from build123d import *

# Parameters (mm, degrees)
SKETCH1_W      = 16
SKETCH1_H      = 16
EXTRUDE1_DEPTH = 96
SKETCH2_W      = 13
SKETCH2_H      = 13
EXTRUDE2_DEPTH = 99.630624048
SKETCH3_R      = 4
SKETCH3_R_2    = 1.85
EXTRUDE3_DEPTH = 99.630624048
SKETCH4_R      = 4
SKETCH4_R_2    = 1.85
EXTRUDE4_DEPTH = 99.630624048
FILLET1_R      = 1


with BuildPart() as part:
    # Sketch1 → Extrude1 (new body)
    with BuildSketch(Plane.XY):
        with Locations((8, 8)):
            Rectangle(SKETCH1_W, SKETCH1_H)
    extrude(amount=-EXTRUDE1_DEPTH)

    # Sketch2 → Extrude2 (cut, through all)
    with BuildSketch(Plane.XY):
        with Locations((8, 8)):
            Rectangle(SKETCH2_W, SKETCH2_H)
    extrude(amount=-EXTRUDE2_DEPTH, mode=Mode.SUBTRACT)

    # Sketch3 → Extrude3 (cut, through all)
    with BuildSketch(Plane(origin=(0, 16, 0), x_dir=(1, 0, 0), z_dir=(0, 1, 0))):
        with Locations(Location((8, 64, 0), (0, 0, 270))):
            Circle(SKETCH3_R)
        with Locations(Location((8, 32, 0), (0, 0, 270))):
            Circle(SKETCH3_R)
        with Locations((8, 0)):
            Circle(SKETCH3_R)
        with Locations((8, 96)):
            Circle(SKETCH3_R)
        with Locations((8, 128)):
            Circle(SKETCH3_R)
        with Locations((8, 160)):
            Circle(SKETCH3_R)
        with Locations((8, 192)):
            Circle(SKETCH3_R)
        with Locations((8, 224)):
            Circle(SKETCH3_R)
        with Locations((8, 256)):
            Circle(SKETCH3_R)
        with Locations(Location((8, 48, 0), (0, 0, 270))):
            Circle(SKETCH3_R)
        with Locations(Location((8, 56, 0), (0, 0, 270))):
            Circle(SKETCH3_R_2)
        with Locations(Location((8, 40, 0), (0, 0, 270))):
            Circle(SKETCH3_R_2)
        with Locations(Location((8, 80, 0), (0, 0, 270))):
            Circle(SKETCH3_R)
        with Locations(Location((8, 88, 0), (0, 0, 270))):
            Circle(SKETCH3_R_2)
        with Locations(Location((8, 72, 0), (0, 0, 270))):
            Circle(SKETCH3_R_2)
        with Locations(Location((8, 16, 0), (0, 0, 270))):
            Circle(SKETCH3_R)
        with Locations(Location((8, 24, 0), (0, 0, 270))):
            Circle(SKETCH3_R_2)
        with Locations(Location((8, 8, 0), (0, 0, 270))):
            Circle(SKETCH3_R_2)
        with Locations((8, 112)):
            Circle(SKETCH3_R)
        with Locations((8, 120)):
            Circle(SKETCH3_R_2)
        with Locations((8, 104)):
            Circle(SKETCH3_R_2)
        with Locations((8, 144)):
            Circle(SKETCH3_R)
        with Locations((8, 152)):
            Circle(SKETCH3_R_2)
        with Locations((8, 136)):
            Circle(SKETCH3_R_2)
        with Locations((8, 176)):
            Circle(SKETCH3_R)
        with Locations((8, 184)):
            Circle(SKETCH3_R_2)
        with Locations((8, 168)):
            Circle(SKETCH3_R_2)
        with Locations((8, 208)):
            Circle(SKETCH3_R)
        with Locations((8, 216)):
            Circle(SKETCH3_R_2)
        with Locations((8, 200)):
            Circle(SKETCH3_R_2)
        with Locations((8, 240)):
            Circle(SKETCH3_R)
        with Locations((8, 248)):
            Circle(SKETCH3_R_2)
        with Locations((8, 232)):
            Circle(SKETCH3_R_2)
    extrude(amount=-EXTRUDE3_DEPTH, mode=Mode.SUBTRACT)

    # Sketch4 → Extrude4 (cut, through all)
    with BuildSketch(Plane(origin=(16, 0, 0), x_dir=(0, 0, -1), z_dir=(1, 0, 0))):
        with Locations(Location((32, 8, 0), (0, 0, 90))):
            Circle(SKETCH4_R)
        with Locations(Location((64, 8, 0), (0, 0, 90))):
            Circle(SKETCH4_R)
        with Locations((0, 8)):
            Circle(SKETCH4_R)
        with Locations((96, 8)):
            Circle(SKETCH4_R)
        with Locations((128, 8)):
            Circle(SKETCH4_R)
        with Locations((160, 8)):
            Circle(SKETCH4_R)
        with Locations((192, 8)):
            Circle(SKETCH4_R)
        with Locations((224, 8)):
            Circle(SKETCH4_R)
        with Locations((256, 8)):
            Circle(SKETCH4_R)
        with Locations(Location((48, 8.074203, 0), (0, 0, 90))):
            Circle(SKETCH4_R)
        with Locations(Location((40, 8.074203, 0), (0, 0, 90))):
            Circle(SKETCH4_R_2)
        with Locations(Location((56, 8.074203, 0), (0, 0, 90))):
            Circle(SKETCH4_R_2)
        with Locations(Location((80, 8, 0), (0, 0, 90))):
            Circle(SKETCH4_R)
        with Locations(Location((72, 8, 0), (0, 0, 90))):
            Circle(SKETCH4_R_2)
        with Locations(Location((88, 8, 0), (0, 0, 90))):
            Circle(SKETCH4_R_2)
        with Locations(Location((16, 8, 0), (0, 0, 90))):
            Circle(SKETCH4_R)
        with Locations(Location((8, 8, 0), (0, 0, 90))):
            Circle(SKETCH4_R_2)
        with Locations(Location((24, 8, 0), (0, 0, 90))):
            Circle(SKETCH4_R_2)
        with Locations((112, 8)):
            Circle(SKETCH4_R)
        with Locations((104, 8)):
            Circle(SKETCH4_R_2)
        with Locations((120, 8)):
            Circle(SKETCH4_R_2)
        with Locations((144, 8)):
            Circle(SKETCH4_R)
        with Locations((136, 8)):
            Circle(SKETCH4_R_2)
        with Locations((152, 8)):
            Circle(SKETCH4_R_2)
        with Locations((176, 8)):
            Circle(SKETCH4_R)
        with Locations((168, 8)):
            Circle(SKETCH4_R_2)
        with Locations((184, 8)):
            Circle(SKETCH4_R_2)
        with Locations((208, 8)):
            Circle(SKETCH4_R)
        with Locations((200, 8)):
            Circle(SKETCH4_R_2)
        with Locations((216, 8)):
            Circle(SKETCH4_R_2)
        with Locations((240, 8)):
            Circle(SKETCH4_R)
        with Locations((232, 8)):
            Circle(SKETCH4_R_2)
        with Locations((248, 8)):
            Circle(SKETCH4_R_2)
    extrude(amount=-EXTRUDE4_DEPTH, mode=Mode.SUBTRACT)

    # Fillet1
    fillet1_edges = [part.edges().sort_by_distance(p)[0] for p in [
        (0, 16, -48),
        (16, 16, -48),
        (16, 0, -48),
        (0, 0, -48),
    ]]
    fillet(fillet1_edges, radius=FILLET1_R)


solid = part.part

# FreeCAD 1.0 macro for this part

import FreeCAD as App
import Part
import Sketcher
from FreeCAD import Vector


def edges_at(feature, points):
    """Names of the edges that pass closest to the given points."""
    edges = feature.Shape.Edges
    near = lambda p: min(range(len(edges)), key=lambda i: edges[i].distToShape(Part.Vertex(*p))[0])
    return sorted({f"Edge{near(p) + 1}" for p in points})

doc = App.newDocument("Part")
params = doc.addObject("Spreadsheet::Sheet", "Params")
for row, (alias, value) in enumerate([
    ("sketch1_width", "16 mm"),
    ("pad1_length", "96 mm"),
    ("sketch2_width", "13 mm"),
    ("sketch3_diameter", "8 mm"),
    ("sketch3_diameter2", "3.7 mm"),
    ("sketch4_diameter", "8 mm"),
    ("sketch4_diameter2", "3.7 mm"),
    ("fillet_radius", "1 mm"),
], start=1):
    params.set(f"A{row}", alias)
    params.set(f"B{row}", "=" + value)
    params.setAlias(f"B{row}", alias)

body = doc.addObject("PartDesign::Body", "Body")

# Sketch on XY plane
sketch1 = doc.addObject("Sketcher::SketchObject", "Sketch")
body.addObject(sketch1)
sketch1.AttachmentSupport = (doc.XY_Plane, [""])
sketch1.MapMode = "FlatFace"
sketch1.addGeometry([
    Part.LineSegment(Vector(0, 16, 0), Vector(0, 0, 0)),
    Part.LineSegment(Vector(0, 0, 0), Vector(16, 0, 0)),
    Part.LineSegment(Vector(16, 0, 0), Vector(16, 16, 0)),
    Part.LineSegment(Vector(16, 16, 0), Vector(0, 16, 0)),
], False)
sketch1.addConstraint([
    Sketcher.Constraint("Coincident", 0, 2, 1, 1),
    Sketcher.Constraint("Coincident", 1, 2, 2, 1),
    Sketcher.Constraint("Coincident", 2, 2, 3, 1),
    Sketcher.Constraint("Coincident", 3, 2, 0, 1),
    Sketcher.Constraint("Vertical", 0),
    Sketcher.Constraint("Horizontal", 1),
    Sketcher.Constraint("Vertical", 2),
    Sketcher.Constraint("Horizontal", 3),
    Sketcher.Constraint("Coincident", 0, 2, -1, 1),
    Sketcher.Constraint("Equal", 3, 0),
    Sketcher.Constraint("DistanceX", 1, 1, 1, 2, 16.0),
])
sketch1.setExpression("Constraints[10]", "Params.sketch1_width")
pad1 = doc.addObject("PartDesign::Pad", "Pad")
body.addObject(pad1)
pad1.Profile = sketch1
pad1.setExpression("Length", "Params.pad1_length")
pad1.Reversed = True

# Sketch on XY plane
sketch2 = doc.addObject("Sketcher::SketchObject", "Sketch001")
body.addObject(sketch2)
sketch2.AttachmentSupport = (doc.XY_Plane, [""])
sketch2.MapMode = "FlatFace"
sketch2.addGeometry([
    Part.LineSegment(Vector(2, 14, 0), Vector(2, 2, 0)),
    Part.LineSegment(Vector(2, 2, 0), Vector(14, 2, 0)),
    Part.LineSegment(Vector(14, 2, 0), Vector(14, 14, 0)),
    Part.LineSegment(Vector(14, 14, 0), Vector(2, 14, 0)),
], False)
sketch2.addConstraint([
    Sketcher.Constraint("Coincident", 0, 2, 1, 1),
    Sketcher.Constraint("Coincident", 1, 2, 2, 1),
    Sketcher.Constraint("Coincident", 2, 2, 3, 1),
    Sketcher.Constraint("Coincident", 3, 2, 0, 1),
    Sketcher.Constraint("Vertical", 0),
    Sketcher.Constraint("Horizontal", 1),
    Sketcher.Constraint("Vertical", 2),
    Sketcher.Constraint("Horizontal", 3),
    Sketcher.Constraint("Equal", 3, 0),
    Sketcher.Constraint("DistanceX", 1, 1, 1, 2, 13.0),
    Sketcher.Constraint("DistanceX", -1, 1, 0, 2, 1.5),
    Sketcher.Constraint("DistanceY", -1, 1, 0, 2, 1.5),
])
sketch2.setExpression("Constraints[9]", "Params.sketch2_width")
pocket1 = doc.addObject("PartDesign::Pocket", "Pocket")
body.addObject(pocket1)
pocket1.Profile = sketch2
pocket1.Type = "ThroughAll"

# Sketch on XZ plane
sketch3 = doc.addObject("Sketcher::SketchObject", "Sketch002")
body.addObject(sketch3)
sketch3.AttachmentSupport = (doc.XZ_Plane, [""])
sketch3.MapMode = "FlatFace"
sketch3.AttachmentOffset = App.Placement(Vector(0, 0, -16), App.Rotation())
sketch3.addGeometry([
    Part.Circle(Vector(8, -64, 0), Vector(0, 0, 1), 4),  # 0
    Part.Circle(Vector(8, -32, 0), Vector(0, 0, 1), 4),  # 1
    Part.Circle(Vector(8, 0, 0), Vector(0, 0, 1), 4),  # 2
    Part.Circle(Vector(8, -96, 0), Vector(0, 0, 1), 4),  # 3
    Part.Circle(Vector(8, -128, 0), Vector(0, 0, 1), 4),  # 4
    Part.Circle(Vector(8, -160, 0), Vector(0, 0, 1), 4),  # 5
    Part.Circle(Vector(8, -192, 0), Vector(0, 0, 1), 4),  # 6
    Part.Circle(Vector(8, -224, 0), Vector(0, 0, 1), 4),  # 7
    Part.Circle(Vector(8, -256, 0), Vector(0, 0, 1), 4),  # 8
    Part.Circle(Vector(8, -48, 0), Vector(0, 0, 1), 4),  # 9
    Part.Circle(Vector(8, -56, 0), Vector(0, 0, 1), 1.9),  # 10
    Part.Circle(Vector(8, -40, 0), Vector(0, 0, 1), 1.9),  # 11
    Part.Circle(Vector(8, -80, 0), Vector(0, 0, 1), 4),  # 12
    Part.Circle(Vector(8, -88, 0), Vector(0, 0, 1), 1.9),  # 13
    Part.Circle(Vector(8, -72, 0), Vector(0, 0, 1), 1.9),  # 14
    Part.Circle(Vector(8, -16, 0), Vector(0, 0, 1), 4),  # 15
    Part.Circle(Vector(8, -24, 0), Vector(0, 0, 1), 1.9),  # 16
    Part.Circle(Vector(8, -8, 0), Vector(0, 0, 1), 1.9),  # 17
    Part.Circle(Vector(8, -112, 0), Vector(0, 0, 1), 4),  # 18
    Part.Circle(Vector(8, -120, 0), Vector(0, 0, 1), 1.9),  # 19
    Part.Circle(Vector(8, -104, 0), Vector(0, 0, 1), 1.9),  # 20
    Part.Circle(Vector(8, -144, 0), Vector(0, 0, 1), 4),  # 21
    Part.Circle(Vector(8, -152, 0), Vector(0, 0, 1), 1.9),  # 22
    Part.Circle(Vector(8, -136, 0), Vector(0, 0, 1), 1.9),  # 23
    Part.Circle(Vector(8, -176, 0), Vector(0, 0, 1), 4),  # 24
    Part.Circle(Vector(8, -184, 0), Vector(0, 0, 1), 1.9),  # 25
    Part.Circle(Vector(8, -168, 0), Vector(0, 0, 1), 1.9),  # 26
    Part.Circle(Vector(8, -208, 0), Vector(0, 0, 1), 4),  # 27
    Part.Circle(Vector(8, -216, 0), Vector(0, 0, 1), 1.9),  # 28
    Part.Circle(Vector(8, -200, 0), Vector(0, 0, 1), 1.9),  # 29
    Part.Circle(Vector(8, -240, 0), Vector(0, 0, 1), 4),  # 30
    Part.Circle(Vector(8, -248, 0), Vector(0, 0, 1), 1.9),  # 31
    Part.Circle(Vector(8, -232, 0), Vector(0, 0, 1), 1.9),  # 32
], False)
sketch3.addConstraint([
    Sketcher.Constraint("Equal", 0, 1),
    Sketcher.Constraint("Equal", 1, 2),
    Sketcher.Constraint("Equal", 2, 3),
    Sketcher.Constraint("Equal", 3, 4),
    Sketcher.Constraint("Equal", 4, 5),
    Sketcher.Constraint("Equal", 5, 6),
    Sketcher.Constraint("Equal", 6, 7),
    Sketcher.Constraint("Equal", 7, 8),
    Sketcher.Constraint("Equal", 8, 9),
    Sketcher.Constraint("Equal", 10, 11),
    Sketcher.Constraint("Equal", 9, 12),
    Sketcher.Constraint("Equal", 11, 13),
    Sketcher.Constraint("Equal", 13, 14),
    Sketcher.Constraint("Equal", 12, 15),
    Sketcher.Constraint("Equal", 14, 16),
    Sketcher.Constraint("Equal", 16, 17),
    Sketcher.Constraint("Equal", 15, 18),
    Sketcher.Constraint("Equal", 17, 19),
    Sketcher.Constraint("Equal", 19, 20),
    Sketcher.Constraint("Equal", 18, 21),
    Sketcher.Constraint("Equal", 20, 22),
    Sketcher.Constraint("Equal", 22, 23),
    Sketcher.Constraint("Equal", 21, 24),
    Sketcher.Constraint("Equal", 23, 25),
    Sketcher.Constraint("Equal", 25, 26),
    Sketcher.Constraint("Equal", 24, 27),
    Sketcher.Constraint("Equal", 26, 28),
    Sketcher.Constraint("Equal", 28, 29),
    Sketcher.Constraint("Equal", 27, 30),
    Sketcher.Constraint("Equal", 29, 31),
    Sketcher.Constraint("Equal", 31, 32),
    Sketcher.Constraint("PointOnObject", 2, 3, -1),
    Sketcher.Constraint("Vertical", 0, 3, 1, 3),
    Sketcher.Constraint("Vertical", 1, 3, 2, 3),
    Sketcher.Constraint("Vertical", 2, 3, 3, 3),
    Sketcher.Constraint("Vertical", 3, 3, 4, 3),
    Sketcher.Constraint("Vertical", 4, 3, 5, 3),
    Sketcher.Constraint("Vertical", 5, 3, 6, 3),
    Sketcher.Constraint("Vertical", 6, 3, 7, 3),
    Sketcher.Constraint("Vertical", 7, 3, 8, 3),
    Sketcher.Constraint("Vertical", 8, 3, 9, 3),
    Sketcher.Constraint("Vertical", 9, 3, 10, 3),
    Sketcher.Constraint("Vertical", 10, 3, 11, 3),
    Sketcher.Constraint("Vertical", 11, 3, 12, 3),
    Sketcher.Constraint("Vertical", 12, 3, 13, 3),
    Sketcher.Constraint("Vertical", 13, 3, 14, 3),
    Sketcher.Constraint("Vertical", 14, 3, 15, 3),
    Sketcher.Constraint("Vertical", 15, 3, 16, 3),
    Sketcher.Constraint("Vertical", 16, 3, 17, 3),
    Sketcher.Constraint("Vertical", 17, 3, 18, 3),
    Sketcher.Constraint("Vertical", 18, 3, 19, 3),
    Sketcher.Constraint("Vertical", 19, 3, 20, 3),
    Sketcher.Constraint("Vertical", 20, 3, 21, 3),
    Sketcher.Constraint("Vertical", 21, 3, 22, 3),
    Sketcher.Constraint("Vertical", 22, 3, 23, 3),
    Sketcher.Constraint("Vertical", 23, 3, 24, 3),
    Sketcher.Constraint("Vertical", 24, 3, 25, 3),
    Sketcher.Constraint("Vertical", 25, 3, 26, 3),
    Sketcher.Constraint("Vertical", 26, 3, 27, 3),
    Sketcher.Constraint("Vertical", 27, 3, 28, 3),
    Sketcher.Constraint("Vertical", 28, 3, 29, 3),
    Sketcher.Constraint("Vertical", 29, 3, 30, 3),
    Sketcher.Constraint("Vertical", 30, 3, 31, 3),
    Sketcher.Constraint("Vertical", 31, 3, 32, 3),
    Sketcher.Constraint("Diameter", 0, 8.0),
    Sketcher.Constraint("Diameter", 10, 3.7),
    Sketcher.Constraint("DistanceX", -1, 1, 0, 3, 8.0),
    Sketcher.Constraint("DistanceY", 0, 3, -1, 1, 64.0),
    Sketcher.Constraint("DistanceY", 1, 3, -1, 1, 32.0),
    Sketcher.Constraint("DistanceY", 3, 3, -1, 1, 96.0),
    Sketcher.Constraint("DistanceY", 4, 3, -1, 1, 128.0),
    Sketcher.Constraint("DistanceY", 5, 3, -1, 1, 160.0),
    Sketcher.Constraint("DistanceY", 6, 3, -1, 1, 192.0),
    Sketcher.Constraint("DistanceY", 7, 3, -1, 1, 224.0),
    Sketcher.Constraint("DistanceY", 8, 3, -1, 1, 256.0),
    Sketcher.Constraint("DistanceY", 9, 3, -1, 1, 48.0),
    Sketcher.Constraint("DistanceY", 10, 3, -1, 1, 56.0),
    Sketcher.Constraint("DistanceY", 11, 3, -1, 1, 40.0),
    Sketcher.Constraint("DistanceY", 12, 3, -1, 1, 80.0),
    Sketcher.Constraint("DistanceY", 13, 3, -1, 1, 88.0),
    Sketcher.Constraint("DistanceY", 14, 3, -1, 1, 72.0),
    Sketcher.Constraint("DistanceY", 15, 3, -1, 1, 16.0),
    Sketcher.Constraint("DistanceY", 16, 3, -1, 1, 24.0),
    Sketcher.Constraint("DistanceY", 17, 3, -1, 1, 8.0),
    Sketcher.Constraint("DistanceY", 18, 3, -1, 1, 112.0),
    Sketcher.Constraint("DistanceY", 19, 3, -1, 1, 120.0),
    Sketcher.Constraint("DistanceY", 20, 3, -1, 1, 104.0),
    Sketcher.Constraint("DistanceY", 21, 3, -1, 1, 144.0),
    Sketcher.Constraint("DistanceY", 22, 3, -1, 1, 152.0),
    Sketcher.Constraint("DistanceY", 23, 3, -1, 1, 136.0),
    Sketcher.Constraint("DistanceY", 24, 3, -1, 1, 176.0),
    Sketcher.Constraint("DistanceY", 25, 3, -1, 1, 184.0),
    Sketcher.Constraint("DistanceY", 26, 3, -1, 1, 168.0),
    Sketcher.Constraint("DistanceY", 27, 3, -1, 1, 208.0),
    Sketcher.Constraint("DistanceY", 28, 3, -1, 1, 216.0),
    Sketcher.Constraint("DistanceY", 29, 3, -1, 1, 200.0),
    Sketcher.Constraint("DistanceY", 30, 3, -1, 1, 240.0),
    Sketcher.Constraint("DistanceY", 31, 3, -1, 1, 248.0),
    Sketcher.Constraint("DistanceY", 32, 3, -1, 1, 232.0),
])
sketch3.setExpression("Constraints[64]", "Params.sketch3_diameter")
sketch3.setExpression("Constraints[65]", "Params.sketch3_diameter2")
pocket2 = doc.addObject("PartDesign::Pocket", "Pocket001")
body.addObject(pocket2)
pocket2.Profile = sketch3
pocket2.Type = "ThroughAll"
pocket2.Reversed = True

# Sketch on YZ plane
sketch4 = doc.addObject("Sketcher::SketchObject", "Sketch003")
body.addObject(sketch4)
sketch4.AttachmentSupport = (doc.YZ_Plane, [""])
sketch4.MapMode = "FlatFace"
sketch4.AttachmentOffset = App.Placement(Vector(0, 0, 16), App.Rotation())
sketch4.addGeometry([
    Part.Circle(Vector(8, -32, 0), Vector(0, 0, 1), 4),  # 0
    Part.Circle(Vector(8, -64, 0), Vector(0, 0, 1), 4),  # 1
    Part.Circle(Vector(8, 0, 0), Vector(0, 0, 1), 4),  # 2
    Part.Circle(Vector(8, -96, 0), Vector(0, 0, 1), 4),  # 3
    Part.Circle(Vector(8, -128, 0), Vector(0, 0, 1), 4),  # 4
    Part.Circle(Vector(8, -160, 0), Vector(0, 0, 1), 4),  # 5
    Part.Circle(Vector(8, -192, 0), Vector(0, 0, 1), 4),  # 6
    Part.Circle(Vector(8, -224, 0), Vector(0, 0, 1), 4),  # 7
    Part.Circle(Vector(8, -256, 0), Vector(0, 0, 1), 4),  # 8
    Part.Circle(Vector(8.1, -48, 0), Vector(0, 0, 1), 4),  # 9
    Part.Circle(Vector(8.1, -40, 0), Vector(0, 0, 1), 1.9),  # 10
    Part.Circle(Vector(8.1, -56, 0), Vector(0, 0, 1), 1.9),  # 11
    Part.Circle(Vector(8, -80, 0), Vector(0, 0, 1), 4),  # 12
    Part.Circle(Vector(8, -72, 0), Vector(0, 0, 1), 1.9),  # 13
    Part.Circle(Vector(8, -88, 0), Vector(0, 0, 1), 1.9),  # 14
    Part.Circle(Vector(8, -16, 0), Vector(0, 0, 1), 4),  # 15
    Part.Circle(Vector(8, -8, 0), Vector(0, 0, 1), 1.9),  # 16
    Part.Circle(Vector(8, -24, 0), Vector(0, 0, 1), 1.9),  # 17
    Part.Circle(Vector(8, -112, 0), Vector(0, 0, 1), 4),  # 18
    Part.Circle(Vector(8, -104, 0), Vector(0, 0, 1), 1.9),  # 19
    Part.Circle(Vector(8, -120, 0), Vector(0, 0, 1), 1.9),  # 20
    Part.Circle(Vector(8, -144, 0), Vector(0, 0, 1), 4),  # 21
    Part.Circle(Vector(8, -136, 0), Vector(0, 0, 1), 1.9),  # 22
    Part.Circle(Vector(8, -152, 0), Vector(0, 0, 1), 1.9),  # 23
    Part.Circle(Vector(8, -176, 0), Vector(0, 0, 1), 4),  # 24
    Part.Circle(Vector(8, -168, 0), Vector(0, 0, 1), 1.9),  # 25
    Part.Circle(Vector(8, -184, 0), Vector(0, 0, 1), 1.9),  # 26
    Part.Circle(Vector(8, -208, 0), Vector(0, 0, 1), 4),  # 27
    Part.Circle(Vector(8, -200, 0), Vector(0, 0, 1), 1.9),  # 28
    Part.Circle(Vector(8, -216, 0), Vector(0, 0, 1), 1.9),  # 29
    Part.Circle(Vector(8, -240, 0), Vector(0, 0, 1), 4),  # 30
    Part.Circle(Vector(8, -232, 0), Vector(0, 0, 1), 1.9),  # 31
    Part.Circle(Vector(8, -248, 0), Vector(0, 0, 1), 1.9),  # 32
], False)
sketch4.addConstraint([
    Sketcher.Constraint("Equal", 0, 1),
    Sketcher.Constraint("Equal", 1, 2),
    Sketcher.Constraint("Equal", 2, 3),
    Sketcher.Constraint("Equal", 3, 4),
    Sketcher.Constraint("Equal", 4, 5),
    Sketcher.Constraint("Equal", 5, 6),
    Sketcher.Constraint("Equal", 6, 7),
    Sketcher.Constraint("Equal", 7, 8),
    Sketcher.Constraint("Equal", 8, 9),
    Sketcher.Constraint("Equal", 10, 11),
    Sketcher.Constraint("Equal", 9, 12),
    Sketcher.Constraint("Equal", 11, 13),
    Sketcher.Constraint("Equal", 13, 14),
    Sketcher.Constraint("Equal", 12, 15),
    Sketcher.Constraint("Equal", 14, 16),
    Sketcher.Constraint("Equal", 16, 17),
    Sketcher.Constraint("Equal", 15, 18),
    Sketcher.Constraint("Equal", 17, 19),
    Sketcher.Constraint("Equal", 19, 20),
    Sketcher.Constraint("Equal", 18, 21),
    Sketcher.Constraint("Equal", 20, 22),
    Sketcher.Constraint("Equal", 22, 23),
    Sketcher.Constraint("Equal", 21, 24),
    Sketcher.Constraint("Equal", 23, 25),
    Sketcher.Constraint("Equal", 25, 26),
    Sketcher.Constraint("Equal", 24, 27),
    Sketcher.Constraint("Equal", 26, 28),
    Sketcher.Constraint("Equal", 28, 29),
    Sketcher.Constraint("Equal", 27, 30),
    Sketcher.Constraint("Equal", 29, 31),
    Sketcher.Constraint("Equal", 31, 32),
    Sketcher.Constraint("PointOnObject", 2, 3, -1),
    Sketcher.Constraint("Vertical", 0, 3, 1, 3),
    Sketcher.Constraint("Vertical", 1, 3, 2, 3),
    Sketcher.Constraint("Vertical", 2, 3, 3, 3),
    Sketcher.Constraint("Vertical", 3, 3, 4, 3),
    Sketcher.Constraint("Vertical", 4, 3, 5, 3),
    Sketcher.Constraint("Vertical", 5, 3, 6, 3),
    Sketcher.Constraint("Vertical", 6, 3, 7, 3),
    Sketcher.Constraint("Vertical", 7, 3, 8, 3),
    Sketcher.Constraint("Vertical", 9, 3, 10, 3),
    Sketcher.Constraint("Vertical", 10, 3, 11, 3),
    Sketcher.Constraint("Vertical", 8, 3, 12, 3),
    Sketcher.Constraint("Vertical", 12, 3, 13, 3),
    Sketcher.Constraint("Vertical", 13, 3, 14, 3),
    Sketcher.Constraint("Vertical", 14, 3, 15, 3),
    Sketcher.Constraint("Vertical", 15, 3, 16, 3),
    Sketcher.Constraint("Vertical", 16, 3, 17, 3),
    Sketcher.Constraint("Vertical", 17, 3, 18, 3),
    Sketcher.Constraint("Vertical", 18, 3, 19, 3),
    Sketcher.Constraint("Vertical", 19, 3, 20, 3),
    Sketcher.Constraint("Vertical", 20, 3, 21, 3),
    Sketcher.Constraint("Vertical", 21, 3, 22, 3),
    Sketcher.Constraint("Vertical", 22, 3, 23, 3),
    Sketcher.Constraint("Vertical", 23, 3, 24, 3),
    Sketcher.Constraint("Vertical", 24, 3, 25, 3),
    Sketcher.Constraint("Vertical", 25, 3, 26, 3),
    Sketcher.Constraint("Vertical", 26, 3, 27, 3),
    Sketcher.Constraint("Vertical", 27, 3, 28, 3),
    Sketcher.Constraint("Vertical", 28, 3, 29, 3),
    Sketcher.Constraint("Vertical", 29, 3, 30, 3),
    Sketcher.Constraint("Vertical", 30, 3, 31, 3),
    Sketcher.Constraint("Vertical", 31, 3, 32, 3),
    Sketcher.Constraint("Diameter", 0, 8.0),
    Sketcher.Constraint("Diameter", 10, 3.7),
    Sketcher.Constraint("DistanceX", -1, 1, 0, 3, 8.0),
    Sketcher.Constraint("DistanceY", 0, 3, -1, 1, 32.0),
    Sketcher.Constraint("DistanceY", 1, 3, -1, 1, 64.0),
    Sketcher.Constraint("DistanceY", 3, 3, -1, 1, 96.0),
    Sketcher.Constraint("DistanceY", 4, 3, -1, 1, 128.0),
    Sketcher.Constraint("DistanceY", 5, 3, -1, 1, 160.0),
    Sketcher.Constraint("DistanceY", 6, 3, -1, 1, 192.0),
    Sketcher.Constraint("DistanceY", 7, 3, -1, 1, 224.0),
    Sketcher.Constraint("DistanceY", 8, 3, -1, 1, 256.0),
    Sketcher.Constraint("DistanceY", 9, 3, -1, 1, 48.0),
    Sketcher.Constraint("DistanceY", 10, 3, -1, 1, 40.0),
    Sketcher.Constraint("DistanceY", 11, 3, -1, 1, 56.0),
    Sketcher.Constraint("DistanceY", 12, 3, -1, 1, 80.0),
    Sketcher.Constraint("DistanceY", 13, 3, -1, 1, 72.0),
    Sketcher.Constraint("DistanceY", 14, 3, -1, 1, 88.0),
    Sketcher.Constraint("DistanceY", 15, 3, -1, 1, 16.0),
    Sketcher.Constraint("DistanceY", 16, 3, -1, 1, 8.0),
    Sketcher.Constraint("DistanceY", 17, 3, -1, 1, 24.0),
    Sketcher.Constraint("DistanceY", 18, 3, -1, 1, 112.0),
    Sketcher.Constraint("DistanceY", 19, 3, -1, 1, 104.0),
    Sketcher.Constraint("DistanceY", 20, 3, -1, 1, 120.0),
    Sketcher.Constraint("DistanceY", 21, 3, -1, 1, 144.0),
    Sketcher.Constraint("DistanceY", 22, 3, -1, 1, 136.0),
    Sketcher.Constraint("DistanceY", 23, 3, -1, 1, 152.0),
    Sketcher.Constraint("DistanceY", 24, 3, -1, 1, 176.0),
    Sketcher.Constraint("DistanceY", 25, 3, -1, 1, 168.0),
    Sketcher.Constraint("DistanceY", 26, 3, -1, 1, 184.0),
    Sketcher.Constraint("DistanceY", 27, 3, -1, 1, 208.0),
    Sketcher.Constraint("DistanceY", 28, 3, -1, 1, 200.0),
    Sketcher.Constraint("DistanceY", 29, 3, -1, 1, 216.0),
    Sketcher.Constraint("DistanceY", 30, 3, -1, 1, 240.0),
    Sketcher.Constraint("DistanceY", 31, 3, -1, 1, 232.0),
    Sketcher.Constraint("DistanceY", 32, 3, -1, 1, 248.0),
    Sketcher.Constraint("DistanceX", -1, 1, 9, 3, 8.074203),
])
sketch4.setExpression("Constraints[63]", "Params.sketch4_diameter")
sketch4.setExpression("Constraints[64]", "Params.sketch4_diameter2")
pocket3 = doc.addObject("PartDesign::Pocket", "Pocket002")
body.addObject(pocket3)
pocket3.Profile = sketch4
pocket3.Type = "ThroughAll"
doc.recompute()

fillet = doc.addObject("PartDesign::Fillet", "Fillet")
body.addObject(fillet)
fillet.Base = (pocket3, edges_at(pocket3, [
    (0, 16, -48),
    (16, 16, -48),
    (16, 0, -48),
    (0, 0, -48),
]))
fillet.setExpression("Radius", "Params.fillet_radius")

doc.recompute()
